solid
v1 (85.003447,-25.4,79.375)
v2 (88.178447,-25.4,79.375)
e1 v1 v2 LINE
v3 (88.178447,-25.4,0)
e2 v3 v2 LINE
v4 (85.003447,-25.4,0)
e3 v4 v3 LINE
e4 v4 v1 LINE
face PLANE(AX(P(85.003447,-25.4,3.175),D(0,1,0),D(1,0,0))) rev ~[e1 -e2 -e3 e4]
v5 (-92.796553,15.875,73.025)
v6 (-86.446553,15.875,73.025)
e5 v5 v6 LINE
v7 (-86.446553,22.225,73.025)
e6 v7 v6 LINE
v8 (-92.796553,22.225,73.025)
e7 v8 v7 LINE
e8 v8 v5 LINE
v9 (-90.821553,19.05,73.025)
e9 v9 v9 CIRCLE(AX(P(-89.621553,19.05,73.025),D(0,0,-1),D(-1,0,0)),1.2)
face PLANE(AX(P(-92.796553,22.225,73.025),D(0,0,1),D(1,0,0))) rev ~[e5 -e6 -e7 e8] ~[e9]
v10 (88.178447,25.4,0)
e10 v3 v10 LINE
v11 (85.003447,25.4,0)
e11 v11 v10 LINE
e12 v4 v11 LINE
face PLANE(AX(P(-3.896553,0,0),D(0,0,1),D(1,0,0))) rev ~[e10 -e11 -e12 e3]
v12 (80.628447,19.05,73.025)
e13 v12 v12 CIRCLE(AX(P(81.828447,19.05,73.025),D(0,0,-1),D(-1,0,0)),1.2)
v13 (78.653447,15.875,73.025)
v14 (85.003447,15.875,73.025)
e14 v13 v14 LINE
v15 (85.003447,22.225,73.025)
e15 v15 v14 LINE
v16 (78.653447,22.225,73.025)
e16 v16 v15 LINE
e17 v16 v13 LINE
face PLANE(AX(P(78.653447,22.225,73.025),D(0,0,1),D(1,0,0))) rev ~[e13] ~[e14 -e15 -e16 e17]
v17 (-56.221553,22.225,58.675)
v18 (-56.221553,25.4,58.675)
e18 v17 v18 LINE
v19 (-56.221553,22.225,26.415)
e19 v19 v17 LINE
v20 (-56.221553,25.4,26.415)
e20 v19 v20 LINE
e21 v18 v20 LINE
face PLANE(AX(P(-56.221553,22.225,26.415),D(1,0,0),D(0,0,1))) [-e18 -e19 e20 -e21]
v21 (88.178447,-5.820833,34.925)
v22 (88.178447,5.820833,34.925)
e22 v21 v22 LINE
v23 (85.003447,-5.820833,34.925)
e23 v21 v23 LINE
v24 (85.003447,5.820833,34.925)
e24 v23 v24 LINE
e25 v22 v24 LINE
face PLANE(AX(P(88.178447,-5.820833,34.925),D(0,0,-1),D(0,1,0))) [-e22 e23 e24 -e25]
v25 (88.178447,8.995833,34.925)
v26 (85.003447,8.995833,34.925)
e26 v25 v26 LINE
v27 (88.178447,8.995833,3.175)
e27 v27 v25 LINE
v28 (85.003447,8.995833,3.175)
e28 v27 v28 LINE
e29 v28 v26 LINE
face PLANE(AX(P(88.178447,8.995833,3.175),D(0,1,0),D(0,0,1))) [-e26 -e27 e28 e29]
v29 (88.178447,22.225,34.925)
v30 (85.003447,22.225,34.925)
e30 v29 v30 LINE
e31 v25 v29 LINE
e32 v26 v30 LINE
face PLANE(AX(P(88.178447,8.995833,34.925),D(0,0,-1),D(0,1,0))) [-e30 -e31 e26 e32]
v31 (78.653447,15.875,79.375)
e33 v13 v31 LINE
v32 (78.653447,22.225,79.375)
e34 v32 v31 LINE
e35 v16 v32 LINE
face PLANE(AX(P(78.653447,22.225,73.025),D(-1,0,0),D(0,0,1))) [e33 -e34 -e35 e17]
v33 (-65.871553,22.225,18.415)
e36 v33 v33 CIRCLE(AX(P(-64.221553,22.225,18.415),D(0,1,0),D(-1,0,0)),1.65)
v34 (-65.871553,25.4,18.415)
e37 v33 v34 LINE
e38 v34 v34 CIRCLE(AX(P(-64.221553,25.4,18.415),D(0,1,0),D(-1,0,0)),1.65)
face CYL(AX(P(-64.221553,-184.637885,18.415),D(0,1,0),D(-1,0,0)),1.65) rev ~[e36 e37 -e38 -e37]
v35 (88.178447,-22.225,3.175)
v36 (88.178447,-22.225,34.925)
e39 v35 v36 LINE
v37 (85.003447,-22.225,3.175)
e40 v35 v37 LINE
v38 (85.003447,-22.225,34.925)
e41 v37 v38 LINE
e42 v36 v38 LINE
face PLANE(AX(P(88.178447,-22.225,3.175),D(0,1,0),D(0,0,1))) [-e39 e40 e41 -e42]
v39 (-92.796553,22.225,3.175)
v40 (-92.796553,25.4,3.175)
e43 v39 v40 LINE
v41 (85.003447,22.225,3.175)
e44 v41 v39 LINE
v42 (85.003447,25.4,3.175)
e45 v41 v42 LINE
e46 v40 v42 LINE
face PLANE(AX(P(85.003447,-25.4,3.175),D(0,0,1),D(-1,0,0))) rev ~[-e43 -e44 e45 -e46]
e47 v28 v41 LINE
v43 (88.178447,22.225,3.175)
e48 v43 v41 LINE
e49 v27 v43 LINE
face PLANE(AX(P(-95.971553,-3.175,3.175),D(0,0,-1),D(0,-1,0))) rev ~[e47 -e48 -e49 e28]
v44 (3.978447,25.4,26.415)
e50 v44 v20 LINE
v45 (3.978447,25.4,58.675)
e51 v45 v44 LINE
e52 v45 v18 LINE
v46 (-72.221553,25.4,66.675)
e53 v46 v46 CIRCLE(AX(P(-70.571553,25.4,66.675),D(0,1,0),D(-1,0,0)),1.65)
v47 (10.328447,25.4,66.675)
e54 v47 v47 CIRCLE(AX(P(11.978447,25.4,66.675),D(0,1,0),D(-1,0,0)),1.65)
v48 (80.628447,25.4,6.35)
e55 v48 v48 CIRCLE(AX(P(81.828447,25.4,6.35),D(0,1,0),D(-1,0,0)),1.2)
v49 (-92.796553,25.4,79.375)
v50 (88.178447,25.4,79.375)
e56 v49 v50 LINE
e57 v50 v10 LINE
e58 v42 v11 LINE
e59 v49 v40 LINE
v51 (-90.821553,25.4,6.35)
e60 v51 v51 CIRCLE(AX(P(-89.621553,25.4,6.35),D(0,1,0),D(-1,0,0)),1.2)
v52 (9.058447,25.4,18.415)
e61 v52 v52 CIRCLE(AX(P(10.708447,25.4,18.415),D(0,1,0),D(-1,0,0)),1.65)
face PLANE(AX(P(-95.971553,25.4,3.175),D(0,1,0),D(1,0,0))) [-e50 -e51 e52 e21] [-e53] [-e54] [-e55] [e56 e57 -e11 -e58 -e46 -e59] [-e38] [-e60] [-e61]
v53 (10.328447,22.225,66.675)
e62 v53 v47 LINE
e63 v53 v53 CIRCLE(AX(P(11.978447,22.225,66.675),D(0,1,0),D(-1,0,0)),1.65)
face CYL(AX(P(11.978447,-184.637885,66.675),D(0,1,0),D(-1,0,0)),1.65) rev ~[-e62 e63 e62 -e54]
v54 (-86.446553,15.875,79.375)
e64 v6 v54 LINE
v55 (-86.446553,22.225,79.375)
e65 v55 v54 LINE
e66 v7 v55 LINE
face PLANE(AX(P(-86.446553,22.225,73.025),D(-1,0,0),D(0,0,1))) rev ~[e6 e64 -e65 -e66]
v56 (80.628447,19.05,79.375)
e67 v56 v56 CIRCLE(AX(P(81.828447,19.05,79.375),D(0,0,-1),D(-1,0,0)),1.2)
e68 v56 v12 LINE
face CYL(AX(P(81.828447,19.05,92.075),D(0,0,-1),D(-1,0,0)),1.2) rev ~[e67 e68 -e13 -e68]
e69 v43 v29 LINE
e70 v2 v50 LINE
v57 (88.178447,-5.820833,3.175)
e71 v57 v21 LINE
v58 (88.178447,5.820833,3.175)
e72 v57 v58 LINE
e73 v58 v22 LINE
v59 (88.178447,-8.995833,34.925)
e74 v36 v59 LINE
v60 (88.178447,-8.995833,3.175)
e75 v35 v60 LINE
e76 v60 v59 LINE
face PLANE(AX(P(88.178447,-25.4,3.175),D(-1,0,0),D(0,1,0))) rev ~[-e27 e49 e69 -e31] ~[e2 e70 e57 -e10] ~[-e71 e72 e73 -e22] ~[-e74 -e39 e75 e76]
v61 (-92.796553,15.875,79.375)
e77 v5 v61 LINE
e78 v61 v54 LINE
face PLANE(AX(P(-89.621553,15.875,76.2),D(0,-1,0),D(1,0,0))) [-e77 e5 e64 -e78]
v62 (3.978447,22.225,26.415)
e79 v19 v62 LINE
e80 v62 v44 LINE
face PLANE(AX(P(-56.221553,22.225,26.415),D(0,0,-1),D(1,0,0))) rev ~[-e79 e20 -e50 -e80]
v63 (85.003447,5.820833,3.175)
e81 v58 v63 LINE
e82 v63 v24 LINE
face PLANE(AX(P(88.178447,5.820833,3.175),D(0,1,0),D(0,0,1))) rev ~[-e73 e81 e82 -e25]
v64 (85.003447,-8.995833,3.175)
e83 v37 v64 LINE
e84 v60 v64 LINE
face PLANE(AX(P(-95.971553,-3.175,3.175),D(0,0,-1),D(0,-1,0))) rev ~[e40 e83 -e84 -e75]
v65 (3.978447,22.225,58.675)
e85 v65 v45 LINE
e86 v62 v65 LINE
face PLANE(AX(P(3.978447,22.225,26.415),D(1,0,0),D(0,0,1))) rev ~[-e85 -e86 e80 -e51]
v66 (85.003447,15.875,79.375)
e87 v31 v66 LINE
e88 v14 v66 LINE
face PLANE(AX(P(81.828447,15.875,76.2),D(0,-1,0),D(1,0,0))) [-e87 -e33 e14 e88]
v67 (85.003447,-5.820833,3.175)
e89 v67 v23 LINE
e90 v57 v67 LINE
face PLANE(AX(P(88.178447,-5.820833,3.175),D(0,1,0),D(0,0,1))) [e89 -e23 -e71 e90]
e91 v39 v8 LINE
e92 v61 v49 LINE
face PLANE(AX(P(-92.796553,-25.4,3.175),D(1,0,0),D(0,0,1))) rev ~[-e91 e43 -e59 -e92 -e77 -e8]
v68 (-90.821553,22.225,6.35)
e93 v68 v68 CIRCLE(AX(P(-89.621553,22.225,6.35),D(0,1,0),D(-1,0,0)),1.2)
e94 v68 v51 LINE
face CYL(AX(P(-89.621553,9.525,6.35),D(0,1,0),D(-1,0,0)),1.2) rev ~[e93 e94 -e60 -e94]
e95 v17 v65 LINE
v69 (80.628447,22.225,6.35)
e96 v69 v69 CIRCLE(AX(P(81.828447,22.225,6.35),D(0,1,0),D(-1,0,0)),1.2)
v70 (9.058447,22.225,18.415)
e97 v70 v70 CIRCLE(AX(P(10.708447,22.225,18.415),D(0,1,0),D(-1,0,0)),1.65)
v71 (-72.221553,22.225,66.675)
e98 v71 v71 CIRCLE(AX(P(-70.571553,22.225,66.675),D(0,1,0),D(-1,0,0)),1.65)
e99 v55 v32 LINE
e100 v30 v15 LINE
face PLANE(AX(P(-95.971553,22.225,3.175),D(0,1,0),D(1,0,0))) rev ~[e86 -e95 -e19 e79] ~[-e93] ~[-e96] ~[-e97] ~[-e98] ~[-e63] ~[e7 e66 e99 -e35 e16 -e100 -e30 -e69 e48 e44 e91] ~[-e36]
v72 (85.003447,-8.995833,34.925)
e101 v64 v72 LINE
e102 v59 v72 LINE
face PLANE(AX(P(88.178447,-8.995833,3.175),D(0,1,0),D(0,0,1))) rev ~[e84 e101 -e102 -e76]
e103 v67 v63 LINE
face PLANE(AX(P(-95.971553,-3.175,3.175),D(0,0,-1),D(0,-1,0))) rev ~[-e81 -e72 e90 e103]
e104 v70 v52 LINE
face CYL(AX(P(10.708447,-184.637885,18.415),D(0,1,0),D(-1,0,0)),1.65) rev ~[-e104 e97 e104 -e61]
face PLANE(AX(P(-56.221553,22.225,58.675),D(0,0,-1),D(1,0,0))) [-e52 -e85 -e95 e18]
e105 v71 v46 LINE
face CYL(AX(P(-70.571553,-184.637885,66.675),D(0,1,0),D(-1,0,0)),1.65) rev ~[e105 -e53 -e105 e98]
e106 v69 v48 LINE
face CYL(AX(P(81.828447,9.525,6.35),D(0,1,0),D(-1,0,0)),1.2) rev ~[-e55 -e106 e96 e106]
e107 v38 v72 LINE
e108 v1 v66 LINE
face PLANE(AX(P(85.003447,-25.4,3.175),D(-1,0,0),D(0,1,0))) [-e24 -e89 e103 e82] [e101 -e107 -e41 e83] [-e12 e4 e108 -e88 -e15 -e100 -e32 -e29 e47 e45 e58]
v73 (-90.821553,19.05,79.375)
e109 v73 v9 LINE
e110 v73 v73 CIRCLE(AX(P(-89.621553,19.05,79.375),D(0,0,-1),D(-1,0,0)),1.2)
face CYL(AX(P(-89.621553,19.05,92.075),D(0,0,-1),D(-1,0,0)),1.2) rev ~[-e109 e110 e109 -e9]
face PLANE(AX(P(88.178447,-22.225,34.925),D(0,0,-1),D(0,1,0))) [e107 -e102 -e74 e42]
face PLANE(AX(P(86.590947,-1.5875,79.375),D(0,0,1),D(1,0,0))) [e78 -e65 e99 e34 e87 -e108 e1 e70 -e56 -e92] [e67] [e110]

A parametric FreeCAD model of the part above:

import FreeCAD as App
import Part
import Sketcher
Q = App.Units.Quantity

doc = App.newDocument("Part")
body = doc.addObject("PartDesign::Body", "Body")

sketch1 = body.newObject("Sketcher::SketchObject", "Sketch")
sketch1.AttachmentSupport = (doc.getObject("XY_Plane"), [""])
sketch1.MapMode = "FlatFace"
sketch1.addGeometry(Part.LineSegment(App.Vector(-96, 25, 0), App.Vector(-96, -25, 0)), False)
sketch1.addGeometry(Part.LineSegment(App.Vector(-96, -25, 0), App.Vector(88, -25, 0)), False)
sketch1.addGeometry(Part.LineSegment(App.Vector(88, -25, 0), App.Vector(88, 25, 0)), False)
sketch1.addGeometry(Part.LineSegment(App.Vector(88, 25, 0), App.Vector(-96, 25, 0)), False)
sketch1.addConstraint(Sketcher.Constraint("Coincident", 0, 2, 1, 1))
sketch1.addConstraint(Sketcher.Constraint("Coincident", 1, 2, 2, 1))
sketch1.addConstraint(Sketcher.Constraint("Coincident", 2, 2, 3, 1))
sketch1.addConstraint(Sketcher.Constraint("Coincident", 3, 2, 0, 1))
sketch1.addConstraint(Sketcher.Constraint("Vertical", 0))
sketch1.addConstraint(Sketcher.Constraint("Horizontal", 1))
sketch1.addConstraint(Sketcher.Constraint("Vertical", 2))
sketch1.addConstraint(Sketcher.Constraint("Horizontal", 3))
sketch1.addConstraint(Sketcher.Constraint("DistanceY", 0, 2, 0, 1, Q("2 in")))
sketch1.addConstraint(Sketcher.Constraint("DistanceY", 0, 2, -1, 1, Q("1 in")))
sketch1.addConstraint(Sketcher.Constraint("DistanceX", 1, 1, 1, 2, Q("7.25 in")))
sketch1.addConstraint(Sketcher.Constraint("DistanceX", 0, 2, -1, 1, 95.971553))
pad1 = body.newObject("PartDesign::Pad", "Pad")
pad1.Profile = sketch1
pad1.Length = Q("0.125 in")

sketch2 = body.newObject("Sketcher::SketchObject", "Sketch001")
sketch2.AttachmentSupport = (doc.getObject("XY_Plane"), [""])
sketch2.MapMode = "FlatFace"
sketch2.AttachmentOffset = App.Placement(App.Vector(0, 0, 0.125 * 25.4), App.Rotation())
sketch2.addGeometry(Part.Circle(App.Vector(-78.9, 9.5, 0), App.Vector(0, 0, 1), 1.6), False)
sketch2.addGeometry(Part.Circle(App.Vector(-78.9, -15.5, 0), App.Vector(0, 0, 1), 1.6), False)
sketch2.addGeometry(Part.Circle(App.Vector(71.1, -15.5, 0), App.Vector(0, 0, 1), 1.6), False)
sketch2.addGeometry(Part.Circle(App.Vector(71.1, 9.5, 0), App.Vector(0, 0, 1), 1.6), False)
sketch2.addConstraint(Sketcher.Constraint("Equal", 0, 1))
sketch2.addConstraint(Sketcher.Constraint("Equal", 1, 2))
sketch2.addConstraint(Sketcher.Constraint("Equal", 2, 3))
sketch2.addConstraint(Sketcher.Constraint("Horizontal", 1, 3, 2, 3))
sketch2.addConstraint(Sketcher.Constraint("Horizontal", 0, 3, 3, 3))
sketch2.addConstraint(Sketcher.Constraint("Vertical", 0, 3, 1, 3))
sketch2.addConstraint(Sketcher.Constraint("Vertical", 2, 3, 3, 3))
sketch2.addConstraint(Sketcher.Constraint("Diameter", 0, 3.2))
sketch2.addConstraint(Sketcher.Constraint("DistanceY", -1, 1, 0, 3, Q("0.375 in")))
sketch2.addConstraint(Sketcher.Constraint("DistanceY", 1, 3, -1, 1, 15.475))
sketch2.addConstraint(Sketcher.Constraint("DistanceX", 1, 3, 2, 3, 150.0))
sketch2.addConstraint(Sketcher.Constraint("DistanceX", 0, 3, -1, 1, 78.896553))
doc.recompute()
hole = body.newObject("PartDesign::Hole", "Hole")
hole.Profile = sketch2
hole.ThreadType = "None"
hole.Diameter = 3.2
hole.DepthType = "ThroughAll"

sketch3 = body.newObject("Sketcher::SketchObject", "Sketch002")
sketch3.AttachmentSupport = (doc.getObject("XY_Plane"), [""])
sketch3.MapMode = "FlatFace"
sketch3.AttachmentOffset = App.Placement(App.Vector(0, 0, 0.125 * 25.4), App.Rotation())
sketch3.addGeometry(Part.LineSegment(App.Vector(-96, 25.4, 0), App.Vector(-96, 22.2, 0)), False)
sketch3.addGeometry(Part.LineSegment(App.Vector(-96, 22.2, 0), App.Vector(88.2, 22.2, 0)), False)
sketch3.addGeometry(Part.LineSegment(App.Vector(88.2, 22.2, 0), App.Vector(88.2, 25.4, 0)), False)
sketch3.addGeometry(Part.LineSegment(App.Vector(88.2, 25.4, 0), App.Vector(-96, 25.4, 0)), False)
sketch3.addConstraint(Sketcher.Constraint("Coincident", 0, 2, 1, 1))
sketch3.addConstraint(Sketcher.Constraint("Coincident", 1, 2, 2, 1))
sketch3.addConstraint(Sketcher.Constraint("Coincident", 2, 2, 3, 1))
sketch3.addConstraint(Sketcher.Constraint("Coincident", 3, 2, 0, 1))
sketch3.addConstraint(Sketcher.Constraint("Vertical", 0))
sketch3.addConstraint(Sketcher.Constraint("Horizontal", 1))
sketch3.addConstraint(Sketcher.Constraint("Vertical", 2))
sketch3.addConstraint(Sketcher.Constraint("Horizontal", 3))
sketch3.addConstraint(Sketcher.Constraint("DistanceY", -1, 1, 2, 2, Q("1 in")))
sketch3.addConstraint(Sketcher.Constraint("DistanceX", 1, 1, 1, 2, Q("7.25 in")))
sketch3.addConstraint(Sketcher.Constraint("DistanceY", 0, 2, 0, 1, Q("0.125 in")))
sketch3.addConstraint(Sketcher.Constraint("DistanceX", 0, 2, -1, 1, 95.971553))
pad2 = body.newObject("PartDesign::Pad", "Pad001")
pad2.Profile = sketch3
pad2.Length = Q("3 in")

sketch4 = body.newObject("Sketcher::SketchObject", "Sketch003")
sketch4.AttachmentSupport = (doc.getObject("XZ_Plane"), [""])
sketch4.MapMode = "FlatFace"
sketch4.AttachmentOffset = App.Placement(App.Vector(0, 0, -0.875 * 25.4), App.Rotation())
sketch4.addGeometry(Part.Circle(App.Vector(-70.6, 66.7, 0), App.Vector(0, 0, 1), 1.6), False)
sketch4.addGeometry(Part.Circle(App.Vector(12, 66.7, 0), App.Vector(0, 0, 1), 1.6), False)
sketch4.addGeometry(Part.Circle(App.Vector(10.7, 18.4, 0), App.Vector(0, 0, 1), 1.6), False)
sketch4.addGeometry(Part.Circle(App.Vector(-64.2, 18.4, 0), App.Vector(0, 0, 1), 1.6), False)
sketch4.addConstraint(Sketcher.Constraint("Equal", 0, 1))
sketch4.addConstraint(Sketcher.Constraint("Equal", 1, 2))
sketch4.addConstraint(Sketcher.Constraint("Equal", 2, 3))
sketch4.addConstraint(Sketcher.Constraint("Horizontal", 0, 3, 1, 3))
sketch4.addConstraint(Sketcher.Constraint("Horizontal", 2, 3, 3, 3))
sketch4.addConstraint(Sketcher.Constraint("DistanceX", 3, 3, 1, 3, Q("3 in")))
sketch4.addConstraint(Sketcher.Constraint("DistanceY", 2, 3, 1, 3, Q("1.9 in")))
sketch4.addConstraint(Sketcher.Constraint("DistanceX", 0, 3, 2, 3, Q("3.2 in")))
sketch4.addConstraint(Sketcher.Constraint("Diameter", 0, 3.3))
sketch4.addConstraint(Sketcher.Constraint("DistanceX", 0, 3, 1, 3, Q("3.25 in")))
sketch4.addConstraint(Sketcher.Constraint("DistanceY", -1, 1, 0, 3, Q("2.625 in")))
sketch4.addConstraint(Sketcher.Constraint("DistanceX", 0, 3, -1, 1, 70.571553))
doc.recompute()
hole2 = body.newObject("PartDesign::Hole", "Hole001")
hole2.Profile = sketch4
hole2.ThreadType = "None"
hole2.Diameter = 3.3
hole2.DepthType = "ThroughAll"

sketch5 = body.newObject("Sketcher::SketchObject", "Sketch004")
sketch5.AttachmentSupport = (doc.getObject("XY_Plane"), [""])
sketch5.MapMode = "FlatFace"
sketch5.AttachmentOffset = App.Placement(App.Vector(0, 0, 0.125 * 25.4), App.Rotation())
sketch5.addGeometry(Part.LineSegment(App.Vector(-96, 22.2, 0), App.Vector(-96, -25.4, 0)), False)
sketch5.addGeometry(Part.LineSegment(App.Vector(-96, -25.4, 0), App.Vector(-92.8, -25.4, 0)), False)
sketch5.addGeometry(Part.LineSegment(App.Vector(-92.8, -25.4, 0), App.Vector(-92.8, 22.2, 0)), False)
sketch5.addGeometry(Part.LineSegment(App.Vector(-92.8, 22.2, 0), App.Vector(-96, 22.2, 0)), False)
sketch5.addConstraint(Sketcher.Constraint("Coincident", 0, 2, 1, 1))
sketch5.addConstraint(Sketcher.Constraint("Coincident", 1, 2, 2, 1))
sketch5.addConstraint(Sketcher.Constraint("Coincident", 2, 2, 3, 1))
sketch5.addConstraint(Sketcher.Constraint("Coincident", 3, 2, 0, 1))
sketch5.addConstraint(Sketcher.Constraint("Vertical", 0))
sketch5.addConstraint(Sketcher.Constraint("Horizontal", 1))
sketch5.addConstraint(Sketcher.Constraint("Vertical", 2))
sketch5.addConstraint(Sketcher.Constraint("Horizontal", 3))
sketch5.addConstraint(Sketcher.Constraint("DistanceY", 0, 2, -1, 1, Q("1 in")))
sketch5.addConstraint(Sketcher.Constraint("DistanceX", 1, 1, 1, 2, Q("0.125 in")))
sketch5.addConstraint(Sketcher.Constraint("DistanceY", 0, 2, 0, 1, Q("1.875 in")))
sketch5.addConstraint(Sketcher.Constraint("DistanceX", 0, 2, -1, 1, 95.971553))
pad3 = body.newObject("PartDesign::Pad", "Pad002")
pad3.Profile = sketch5
pad3.Length = Q("3 in")

sketch6 = body.newObject("Sketcher::SketchObject", "Sketch005")
sketch6.AttachmentSupport = (doc.getObject("YZ_Plane"), [""])
sketch6.MapMode = "FlatFace"
sketch6.AttachmentOffset = App.Placement(App.Vector(0, 0, -95.971553), App.Rotation())
sketch6.addGeometry(Part.LineSegment(App.Vector(-3, 76, 0), App.Vector(-3, 41, 0)), False)
sketch6.addGeometry(Part.LineSegment(App.Vector(-3, 41, 0), App.Vector(-22, 41, 0)), False)
sketch6.addGeometry(Part.LineSegment(App.Vector(-22, 41, 0), App.Vector(-22, 76, 0)), False)
sketch6.addGeometry(Part.LineSegment(App.Vector(-22, 76, 0), App.Vector(-3, 76, 0)), False)
sketch6.addGeometry(Part.LineSegment(App.Vector(-3, 38, 0), App.Vector(-3, 3, 0)), False)
sketch6.addGeometry(Part.LineSegment(App.Vector(-3, 3, 0), App.Vector(-22, 3, 0)), False)
sketch6.addGeometry(Part.LineSegment(App.Vector(-22, 3, 0), App.Vector(-22, 38, 0)), False)
sketch6.addGeometry(Part.LineSegment(App.Vector(-22, 38, 0), App.Vector(-3, 38, 0)), False)
sketch6.addConstraint(Sketcher.Constraint("Coincident", 0, 2, 1, 1))
sketch6.addConstraint(Sketcher.Constraint("Coincident", 1, 2, 2, 1))
sketch6.addConstraint(Sketcher.Constraint("Coincident", 2, 2, 3, 1))
sketch6.addConstraint(Sketcher.Constraint("Coincident", 3, 2, 0, 1))
sketch6.addConstraint(Sketcher.Constraint("Coincident", 4, 2, 5, 1))
sketch6.addConstraint(Sketcher.Constraint("Coincident", 5, 2, 6, 1))
sketch6.addConstraint(Sketcher.Constraint("Coincident", 6, 2, 7, 1))
sketch6.addConstraint(Sketcher.Constraint("Coincident", 7, 2, 4, 1))
sketch6.addConstraint(Sketcher.Constraint("Vertical", 0))
sketch6.addConstraint(Sketcher.Constraint("Horizontal", 1))
sketch6.addConstraint(Sketcher.Constraint("Vertical", 2))
sketch6.addConstraint(Sketcher.Constraint("Horizontal", 3))
sketch6.addConstraint(Sketcher.Constraint("Vertical", 4))
sketch6.addConstraint(Sketcher.Constraint("Horizontal", 5))
sketch6.addConstraint(Sketcher.Constraint("Vertical", 6))
sketch6.addConstraint(Sketcher.Constraint("Horizontal", 7))
sketch6.addConstraint(Sketcher.Constraint("Vertical", 3, 2, 4, 2))
sketch6.addConstraint(Sketcher.Constraint("Vertical", 2, 2, 5, 2))
sketch6.addConstraint(Sketcher.Constraint("Equal", 2, 4))
sketch6.addConstraint(Sketcher.Constraint("DistanceY", -1, 1, 2, 2, Q("3 in")))
sketch6.addConstraint(Sketcher.Constraint("DistanceX", 1, 2, 1, 1, Q("0.75 in")))
sketch6.addConstraint(Sketcher.Constraint("DistanceY", -1, 1, 6, 2, Q("1.5 in")))
sketch6.addConstraint(Sketcher.Constraint("DistanceY", 0, 2, 0, 1, Q("1.375 in")))
sketch6.addConstraint(Sketcher.Constraint("DistanceX", 0, 2, -1, 1, Q("0.125 in")))
pocket1 = body.newObject("PartDesign::Pocket", "Pocket")
pocket1.Profile = sketch6
pocket1.Type = "ThroughAll"
pocket1.Reversed = True

sketch7 = body.newObject("Sketcher::SketchObject", "Sketch006")
sketch7.AttachmentSupport = (doc.getObject("XY_Plane"), [""])
sketch7.MapMode = "FlatFace"
sketch7.AttachmentOffset = App.Placement(App.Vector(0, 0, 0.125 * 25.4), App.Rotation())
sketch7.addGeometry(Part.LineSegment(App.Vector(85, 22.2, 0), App.Vector(85, -25.4, 0)), False)
sketch7.addGeometry(Part.LineSegment(App.Vector(85, -25.4, 0), App.Vector(88.2, -25.4, 0)), False)
sketch7.addGeometry(Part.LineSegment(App.Vector(88.2, -25.4, 0), App.Vector(88.2, 22.2, 0)), False)
sketch7.addGeometry(Part.LineSegment(App.Vector(88.2, 22.2, 0), App.Vector(85, 22.2, 0)), False)
sketch7.addConstraint(Sketcher.Constraint("Coincident", 0, 2, 1, 1))
sketch7.addConstraint(Sketcher.Constraint("Coincident", 1, 2, 2, 1))
sketch7.addConstraint(Sketcher.Constraint("Coincident", 2, 2, 3, 1))
sketch7.addConstraint(Sketcher.Constraint("Coincident", 3, 2, 0, 1))
sketch7.addConstraint(Sketcher.Constraint("Vertical", 0))
sketch7.addConstraint(Sketcher.Constraint("Horizontal", 1))
sketch7.addConstraint(Sketcher.Constraint("Vertical", 2))
sketch7.addConstraint(Sketcher.Constraint("Horizontal", 3))
sketch7.addConstraint(Sketcher.Constraint("DistanceY", 0, 2, -1, 1, Q("1 in")))
sketch7.addConstraint(Sketcher.Constraint("DistanceX", 1, 1, 1, 2, Q("0.125 in")))
sketch7.addConstraint(Sketcher.Constraint("DistanceY", 0, 2, 0, 1, Q("1.875 in")))
sketch7.addConstraint(Sketcher.Constraint("DistanceX", -1, 1, 0, 2, 85.003447))
pad4 = body.newObject("PartDesign::Pad", "Pad003")
pad4.Profile = sketch7
pad4.Length = Q("3 in")

sketch8 = body.newObject("Sketcher::SketchObject", "Sketch007")
sketch8.AttachmentSupport = (doc.getObject("YZ_Plane"), [""])
sketch8.MapMode = "FlatFace"
sketch8.AttachmentOffset = App.Placement(App.Vector(0, 0, 88.178447), App.Rotation())
sketch8.addGeometry(Part.LineSegment(App.Vector(-22, 35, 0), App.Vector(-22, 3, 0)), False)
sketch8.addGeometry(Part.LineSegment(App.Vector(-22, 3, 0), App.Vector(-9, 3, 0)), False)
sketch8.addGeometry(Part.LineSegment(App.Vector(-9, 3, 0), App.Vector(-9, 35, 0)), False)
sketch8.addGeometry(Part.LineSegment(App.Vector(-9, 35, 0), App.Vector(-22, 35, 0)), False)
sketch8.addGeometry(Part.LineSegment(App.Vector(-6, 35, 0), App.Vector(-6, 3, 0)), False)
sketch8.addGeometry(Part.LineSegment(App.Vector(-6, 3, 0), App.Vector(6, 3, 0)), False)
sketch8.addGeometry(Part.LineSegment(App.Vector(6, 3, 0), App.Vector(6, 35, 0)), False)
sketch8.addGeometry(Part.LineSegment(App.Vector(6, 35, 0), App.Vector(-6, 35, 0)), False)
sketch8.addGeometry(Part.LineSegment(App.Vector(9, 35, 0), App.Vector(9, 3, 0)), False)
sketch8.addGeometry(Part.LineSegment(App.Vector(9, 3, 0), App.Vector(22, 3, 0)), False)
sketch8.addGeometry(Part.LineSegment(App.Vector(22, 3, 0), App.Vector(22, 35, 0)), False)
sketch8.addGeometry(Part.LineSegment(App.Vector(22, 35, 0), App.Vector(9, 35, 0)), False)
sketch8.addConstraint(Sketcher.Constraint("Coincident", 0, 2, 1, 1))
sketch8.addConstraint(Sketcher.Constraint("Coincident", 1, 2, 2, 1))
sketch8.addConstraint(Sketcher.Constraint("Coincident", 2, 2, 3, 1))
sketch8.addConstraint(Sketcher.Constraint("Coincident", 3, 2, 0, 1))
sketch8.addConstraint(Sketcher.Constraint("Coincident", 4, 2, 5, 1))
sketch8.addConstraint(Sketcher.Constraint("Coincident", 5, 2, 6, 1))
sketch8.addConstraint(Sketcher.Constraint("Coincident", 6, 2, 7, 1))
sketch8.addConstraint(Sketcher.Constraint("Coincident", 7, 2, 4, 1))
sketch8.addConstraint(Sketcher.Constraint("Coincident", 8, 2, 9, 1))
sketch8.addConstraint(Sketcher.Constraint("Coincident", 9, 2, 10, 1))
sketch8.addConstraint(Sketcher.Constraint("Coincident", 10, 2, 11, 1))
sketch8.addConstraint(Sketcher.Constraint("Coincident", 11, 2, 8, 1))
sketch8.addConstraint(Sketcher.Constraint("Vertical", 0))
sketch8.addConstraint(Sketcher.Constraint("Horizontal", 1))
sketch8.addConstraint(Sketcher.Constraint("Vertical", 2))
sketch8.addConstraint(Sketcher.Constraint("Horizontal", 3))
sketch8.addConstraint(Sketcher.Constraint("Vertical", 4))
sketch8.addConstraint(Sketcher.Constraint("Horizontal", 5))
sketch8.addConstraint(Sketcher.Constraint("Vertical", 6))
sketch8.addConstraint(Sketcher.Constraint("Horizontal", 7))
sketch8.addConstraint(Sketcher.Constraint("Vertical", 8))
sketch8.addConstraint(Sketcher.Constraint("Horizontal", 9))
sketch8.addConstraint(Sketcher.Constraint("Vertical", 10))
sketch8.addConstraint(Sketcher.Constraint("Horizontal", 11))
sketch8.addConstraint(Sketcher.Constraint("Symmetric", 1, 2, 8, 2, -2))
sketch8.addConstraint(Sketcher.Constraint("Symmetric", 3, 2, 10, 2, -2))
sketch8.addConstraint(Sketcher.Constraint("Horizontal", 1, 2, 4, 2))
sketch8.addConstraint(Sketcher.Constraint("Horizontal", 3, 2, 6, 2))
sketch8.addConstraint(Sketcher.Constraint("DistanceY", 0, 2, 0, 1, Q("1.25 in")))
sketch8.addConstraint(Sketcher.Constraint("DistanceX", 0, 2, -1, 1, Q("0.875 in")))
sketch8.addConstraint(Sketcher.Constraint("DistanceY", -1, 1, 0, 2, Q("0.125 in")))
sketch8.addConstraint(Sketcher.Constraint("DistanceX", 1, 2, 4, 2, Q("0.125 in")))
sketch8.addConstraint(Sketcher.Constraint("DistanceX", 5, 2, 8, 2, Q("0.125 in")))
sketch8.addConstraint(Sketcher.Constraint("DistanceX", 1, 1, 1, 2, 13.229167))
pocket2 = body.newObject("PartDesign::Pocket", "Pocket001")
pocket2.Profile = sketch8
pocket2.Length = Q("0.125 in")

sketch9 = body.newObject("Sketcher::SketchObject", "Sketch008")
sketch9.AttachmentSupport = (doc.getObject("XZ_Plane"), [""])
sketch9.MapMode = "FlatFace"
sketch9.AttachmentOffset = App.Placement(App.Vector(0, 0, -0.875 * 25.4), App.Rotation())
sketch9.addGeometry(Part.LineSegment(App.Vector(-93, 79, 0), App.Vector(-93, 73, 0)), False)
sketch9.addGeometry(Part.LineSegment(App.Vector(-93, 73, 0), App.Vector(-86, 73, 0)), False)
sketch9.addGeometry(Part.LineSegment(App.Vector(-86, 73, 0), App.Vector(-86, 79, 0)), False)
sketch9.addGeometry(Part.LineSegment(App.Vector(-86, 79, 0), App.Vector(-93, 79, 0)), False)
sketch9.addGeometry(Part.LineSegment(App.Vector(79, 79, 0), App.Vector(79, 73, 0)), False)
sketch9.addGeometry(Part.LineSegment(App.Vector(79, 73, 0), App.Vector(85, 73, 0)), False)
sketch9.addGeometry(Part.LineSegment(App.Vector(85, 73, 0), App.Vector(85, 79, 0)), False)
sketch9.addGeometry(Part.LineSegment(App.Vector(85, 79, 0), App.Vector(79, 79, 0)), False)
sketch9.addConstraint(Sketcher.Constraint("Coincident", 0, 2, 1, 1))
sketch9.addConstraint(Sketcher.Constraint("Coincident", 1, 2, 2, 1))
sketch9.addConstraint(Sketcher.Constraint("Coincident", 2, 2, 3, 1))
sketch9.addConstraint(Sketcher.Constraint("Coincident", 3, 2, 0, 1))
sketch9.addConstraint(Sketcher.Constraint("Coincident", 4, 2, 5, 1))
sketch9.addConstraint(Sketcher.Constraint("Coincident", 5, 2, 6, 1))
sketch9.addConstraint(Sketcher.Constraint("Coincident", 6, 2, 7, 1))
sketch9.addConstraint(Sketcher.Constraint("Coincident", 7, 2, 4, 1))
sketch9.addConstraint(Sketcher.Constraint("Vertical", 0))
sketch9.addConstraint(Sketcher.Constraint("Horizontal", 1))
sketch9.addConstraint(Sketcher.Constraint("Vertical", 2))
sketch9.addConstraint(Sketcher.Constraint("Horizontal", 3))
sketch9.addConstraint(Sketcher.Constraint("Vertical", 4))
sketch9.addConstraint(Sketcher.Constraint("Horizontal", 5))
sketch9.addConstraint(Sketcher.Constraint("Vertical", 6))
sketch9.addConstraint(Sketcher.Constraint("Horizontal", 7))
sketch9.addConstraint(Sketcher.Constraint("Horizontal", 1, 2, 4, 2))
sketch9.addConstraint(Sketcher.Constraint("Horizontal", 3, 2, 6, 2))
sketch9.addConstraint(Sketcher.Constraint("Equal", 3, 5))
sketch9.addConstraint(Sketcher.Constraint("Equal", 7, 0))
sketch9.addConstraint(Sketcher.Constraint("DistanceX", 0, 2, 5, 2, Q("7 in")))
sketch9.addConstraint(Sketcher.Constraint("DistanceX", 1, 1, 1, 2, Q("0.25 in")))
sketch9.addConstraint(Sketcher.Constraint("DistanceY", -1, 1, 0, 2, Q("2.875 in")))
sketch9.addConstraint(Sketcher.Constraint("DistanceX", 0, 2, -1, 1, 92.796553))
pad5 = body.newObject("PartDesign::Pad", "Pad004")
pad5.Profile = sketch9
pad5.Length = Q("0.25 in")

sketch10 = body.newObject("Sketcher::SketchObject", "Sketch009")
sketch10.AttachmentSupport = (doc.getObject("XY_Plane"), [""])
sketch10.MapMode = "FlatFace"
sketch10.AttachmentOffset = App.Placement(App.Vector(0, 0, 3.125 * 25.4), App.Rotation())
sketch10.addGeometry(Part.Circle(App.Vector(-89.6, 19.1, 0), App.Vector(0, 0, 1), 1.2), False)
sketch10.addGeometry(Part.Circle(App.Vector(81.8, 19.1, 0), App.Vector(0, 0, 1), 1.2), False)
sketch10.addConstraint(Sketcher.Constraint("Equal", 0, 1))
sketch10.addConstraint(Sketcher.Constraint("Horizontal", 0, 3, 1, 3))
sketch10.addConstraint(Sketcher.Constraint("Diameter", 0, 2.4))
sketch10.addConstraint(Sketcher.Constraint("DistanceY", -1, 1, 0, 3, Q("0.75 in")))
sketch10.addConstraint(Sketcher.Constraint("DistanceX", 0, 3, 1, 3, Q("6.75 in")))
sketch10.addConstraint(Sketcher.Constraint("DistanceX", 0, 3, -1, 1, 89.621553))
doc.recompute()
hole3 = body.newObject("PartDesign::Hole", "Hole002")
hole3.Profile = sketch10
hole3.ThreadType = "None"
hole3.Diameter = 2.4
hole3.DepthType = "Dimension"
hole3.Depth = Q("0.5 in")
hole3.DrillPoint = "Angled"
hole3.DrillPointAngle = 118

sketch11 = body.newObject("Sketcher::SketchObject", "Sketch010")
sketch11.AttachmentSupport = (doc.getObject("XY_Plane"), [""])
sketch11.MapMode = "FlatFace"
sketch11.AttachmentOffset = App.Placement(App.Vector(0, 0, 0.125 * 25.4), App.Rotation())
sketch11.addGeometry(Part.LineSegment(App.Vector(-65, 16, 0), App.Vector(-65, -19, 0)), False)
sketch11.addGeometry(Part.LineSegment(App.Vector(-65, -19, 0), App.Vector(57, -19, 0)), False)
sketch11.addGeometry(Part.LineSegment(App.Vector(57, -19, 0), App.Vector(57, 16, 0)), False)
sketch11.addGeometry(Part.LineSegment(App.Vector(57, 16, 0), App.Vector(-65, 16, 0)), False)
sketch11.addConstraint(Sketcher.Constraint("Coincident", 0, 2, 1, 1))
sketch11.addConstraint(Sketcher.Constraint("Coincident", 1, 2, 2, 1))
sketch11.addConstraint(Sketcher.Constraint("Coincident", 2, 2, 3, 1))
sketch11.addConstraint(Sketcher.Constraint("Coincident", 3, 2, 0, 1))
sketch11.addConstraint(Sketcher.Constraint("Vertical", 0))
sketch11.addConstraint(Sketcher.Constraint("Horizontal", 1))
sketch11.addConstraint(Sketcher.Constraint("Vertical", 2))
sketch11.addConstraint(Sketcher.Constraint("Horizontal", 3))
sketch11.addConstraint(Sketcher.Constraint("DistanceY", 0, 2, 0, 1, Q("1.375 in")))
sketch11.addConstraint(Sketcher.Constraint("DistanceY", 0, 2, -1, 1, Q("0.75 in")))
sketch11.addConstraint(Sketcher.Constraint("DistanceX", 1, 1, 1, 2, 121.4))
sketch11.addConstraint(Sketcher.Constraint("DistanceX", 0, 2, -1, 1, 64.596553))
pocket3 = body.newObject("PartDesign::Pocket", "Pocket002")
pocket3.Profile = sketch11
pocket3.Length = Q("1 in")

sketch12 = body.newObject("Sketcher::SketchObject", "Sketch011")
sketch12.AttachmentSupport = (doc.getObject("XZ_Plane"), [""])
sketch12.MapMode = "FlatFace"
sketch12.AttachmentOffset = App.Placement(App.Vector(0, 0, -0.875 * 25.4), App.Rotation())
sketch12.addGeometry(Part.LineSegment(App.Vector(-56, 59, 0), App.Vector(-56, 26, 0)), False)
sketch12.addGeometry(Part.LineSegment(App.Vector(-56, 26, 0), App.Vector(4, 26, 0)), False)
sketch12.addGeometry(Part.LineSegment(App.Vector(4, 26, 0), App.Vector(4, 59, 0)), False)
sketch12.addGeometry(Part.LineSegment(App.Vector(4, 59, 0), App.Vector(-56, 59, 0)), False)
sketch12.addConstraint(Sketcher.Constraint("Coincident", 0, 2, 1, 1))
sketch12.addConstraint(Sketcher.Constraint("Coincident", 1, 2, 2, 1))
sketch12.addConstraint(Sketcher.Constraint("Coincident", 2, 2, 3, 1))
sketch12.addConstraint(Sketcher.Constraint("Coincident", 3, 2, 0, 1))
sketch12.addConstraint(Sketcher.Constraint("Vertical", 0))
sketch12.addConstraint(Sketcher.Constraint("Horizontal", 1))
sketch12.addConstraint(Sketcher.Constraint("Vertical", 2))
sketch12.addConstraint(Sketcher.Constraint("Horizontal", 3))
sketch12.addConstraint(Sketcher.Constraint("DistanceX", 1, 1, 1, 2, 60.2))
sketch12.addConstraint(Sketcher.Constraint("DistanceY", 0, 2, 0, 1, 32.26))
sketch12.addConstraint(Sketcher.Constraint("DistanceY", -1, 1, 0, 2, 26.415))
sketch12.addConstraint(Sketcher.Constraint("DistanceX", 0, 2, -1, 1, 56.221553))
pocket4 = body.newObject("PartDesign::Pocket", "Pocket003")
pocket4.Profile = sketch12
pocket4.Length = Q("1 in")

sketch13 = body.newObject("Sketcher::SketchObject", "Sketch012")
sketch13.AttachmentSupport = (doc.getObject("XZ_Plane"), [""])
sketch13.MapMode = "FlatFace"
sketch13.AttachmentOffset = App.Placement(App.Vector(0, 0, 1 * 25.4), App.Rotation())
sketch13.addGeometry(Part.LineSegment(App.Vector(-92.8, 79.4, 0), App.Vector(-96, 79.4, 0)), False)
sketch13.addGeometry(Part.LineSegment(App.Vector(-96, 79.4, 0), App.Vector(-96, 0, 0)), False)
sketch13.addGeometry(Part.LineSegment(App.Vector(-96, 0, 0), App.Vector(85, 0, 0)), False)
sketch13.addGeometry(Part.LineSegment(App.Vector(85, 0, 0), App.Vector(85, 3.2, 0)), False)
sketch13.addGeometry(Part.LineSegment(App.Vector(85, 3.2, 0), App.Vector(-92.8, 3.2, 0)), False)
sketch13.addGeometry(Part.LineSegment(App.Vector(-92.8, 3.2, 0), App.Vector(-92.8, 79.4, 0)), False)
sketch13.addConstraint(Sketcher.Constraint("Coincident", 0, 2, 1, 1))
sketch13.addConstraint(Sketcher.Constraint("Coincident", 1, 2, 2, 1))
sketch13.addConstraint(Sketcher.Constraint("Coincident", 2, 2, 3, 1))
sketch13.addConstraint(Sketcher.Constraint("Coincident", 3, 2, 4, 1))
sketch13.addConstraint(Sketcher.Constraint("Coincident", 4, 2, 5, 1))
sketch13.addConstraint(Sketcher.Constraint("Coincident", 5, 2, 0, 1))
sketch13.addConstraint(Sketcher.Constraint("Horizontal", 0))
sketch13.addConstraint(Sketcher.Constraint("Vertical", 1))
sketch13.addConstraint(Sketcher.Constraint("Horizontal", 2))
sketch13.addConstraint(Sketcher.Constraint("Vertical", 3))
sketch13.addConstraint(Sketcher.Constraint("Horizontal", 4))
sketch13.addConstraint(Sketcher.Constraint("Vertical", 5))
sketch13.addConstraint(Sketcher.Constraint("PointOnObject", 1, 2, -1))
sketch13.addConstraint(Sketcher.Constraint("Equal", 0, 3))
sketch13.addConstraint(Sketcher.Constraint("DistanceX", 4, 2, 4, 1, Q("7 in")))
sketch13.addConstraint(Sketcher.Constraint("DistanceY", 5, 1, 5, 2, Q("3 in")))
sketch13.addConstraint(Sketcher.Constraint("DistanceX", 0, 2, 0, 1, Q("0.125 in")))
sketch13.addConstraint(Sketcher.Constraint("DistanceX", 0, 2, -1, 1, 95.971553))
pocket5 = body.newObject("PartDesign::Pocket", "Pocket004")
pocket5.Profile = sketch13
pocket5.Type = "ThroughAll"

sketch14 = body.newObject("Sketcher::SketchObject", "Sketch013")
sketch14.AttachmentSupport = (doc.getObject("XZ_Plane"), [""])
sketch14.MapMode = "FlatFace"
sketch14.AttachmentOffset = App.Placement(App.Vector(0, 0, -0.875 * 25.4), App.Rotation())
sketch14.addGeometry(Part.Circle(App.Vector(-89.6, 6.3, 0), App.Vector(0, 0, 1), 1.2), False)
sketch14.addGeometry(Part.Circle(App.Vector(81.8, 6.3, 0), App.Vector(0, 0, 1), 1.2), False)
sketch14.addConstraint(Sketcher.Constraint("Equal", 0, 1))
sketch14.addConstraint(Sketcher.Constraint("Horizontal", 0, 3, 1, 3))
sketch14.addConstraint(Sketcher.Constraint("Diameter", 0, 2.4))
sketch14.addConstraint(Sketcher.Constraint("DistanceY", -1, 1, 0, 3, Q("0.25 in")))
sketch14.addConstraint(Sketcher.Constraint("DistanceX", 0, 3, 1, 3, Q("6.75 in")))
sketch14.addConstraint(Sketcher.Constraint("DistanceX", 0, 3, -1, 1, 89.621553))
doc.recompute()
hole4 = body.newObject("PartDesign::Hole", "Hole003")
hole4.Profile = sketch14
hole4.ThreadType = "None"
hole4.Diameter = 2.4
hole4.DepthType = "Dimension"
hole4.Depth = Q("0.5 in")
hole4.DrillPoint = "Angled"
hole4.DrillPointAngle = 118

doc.recompute()
